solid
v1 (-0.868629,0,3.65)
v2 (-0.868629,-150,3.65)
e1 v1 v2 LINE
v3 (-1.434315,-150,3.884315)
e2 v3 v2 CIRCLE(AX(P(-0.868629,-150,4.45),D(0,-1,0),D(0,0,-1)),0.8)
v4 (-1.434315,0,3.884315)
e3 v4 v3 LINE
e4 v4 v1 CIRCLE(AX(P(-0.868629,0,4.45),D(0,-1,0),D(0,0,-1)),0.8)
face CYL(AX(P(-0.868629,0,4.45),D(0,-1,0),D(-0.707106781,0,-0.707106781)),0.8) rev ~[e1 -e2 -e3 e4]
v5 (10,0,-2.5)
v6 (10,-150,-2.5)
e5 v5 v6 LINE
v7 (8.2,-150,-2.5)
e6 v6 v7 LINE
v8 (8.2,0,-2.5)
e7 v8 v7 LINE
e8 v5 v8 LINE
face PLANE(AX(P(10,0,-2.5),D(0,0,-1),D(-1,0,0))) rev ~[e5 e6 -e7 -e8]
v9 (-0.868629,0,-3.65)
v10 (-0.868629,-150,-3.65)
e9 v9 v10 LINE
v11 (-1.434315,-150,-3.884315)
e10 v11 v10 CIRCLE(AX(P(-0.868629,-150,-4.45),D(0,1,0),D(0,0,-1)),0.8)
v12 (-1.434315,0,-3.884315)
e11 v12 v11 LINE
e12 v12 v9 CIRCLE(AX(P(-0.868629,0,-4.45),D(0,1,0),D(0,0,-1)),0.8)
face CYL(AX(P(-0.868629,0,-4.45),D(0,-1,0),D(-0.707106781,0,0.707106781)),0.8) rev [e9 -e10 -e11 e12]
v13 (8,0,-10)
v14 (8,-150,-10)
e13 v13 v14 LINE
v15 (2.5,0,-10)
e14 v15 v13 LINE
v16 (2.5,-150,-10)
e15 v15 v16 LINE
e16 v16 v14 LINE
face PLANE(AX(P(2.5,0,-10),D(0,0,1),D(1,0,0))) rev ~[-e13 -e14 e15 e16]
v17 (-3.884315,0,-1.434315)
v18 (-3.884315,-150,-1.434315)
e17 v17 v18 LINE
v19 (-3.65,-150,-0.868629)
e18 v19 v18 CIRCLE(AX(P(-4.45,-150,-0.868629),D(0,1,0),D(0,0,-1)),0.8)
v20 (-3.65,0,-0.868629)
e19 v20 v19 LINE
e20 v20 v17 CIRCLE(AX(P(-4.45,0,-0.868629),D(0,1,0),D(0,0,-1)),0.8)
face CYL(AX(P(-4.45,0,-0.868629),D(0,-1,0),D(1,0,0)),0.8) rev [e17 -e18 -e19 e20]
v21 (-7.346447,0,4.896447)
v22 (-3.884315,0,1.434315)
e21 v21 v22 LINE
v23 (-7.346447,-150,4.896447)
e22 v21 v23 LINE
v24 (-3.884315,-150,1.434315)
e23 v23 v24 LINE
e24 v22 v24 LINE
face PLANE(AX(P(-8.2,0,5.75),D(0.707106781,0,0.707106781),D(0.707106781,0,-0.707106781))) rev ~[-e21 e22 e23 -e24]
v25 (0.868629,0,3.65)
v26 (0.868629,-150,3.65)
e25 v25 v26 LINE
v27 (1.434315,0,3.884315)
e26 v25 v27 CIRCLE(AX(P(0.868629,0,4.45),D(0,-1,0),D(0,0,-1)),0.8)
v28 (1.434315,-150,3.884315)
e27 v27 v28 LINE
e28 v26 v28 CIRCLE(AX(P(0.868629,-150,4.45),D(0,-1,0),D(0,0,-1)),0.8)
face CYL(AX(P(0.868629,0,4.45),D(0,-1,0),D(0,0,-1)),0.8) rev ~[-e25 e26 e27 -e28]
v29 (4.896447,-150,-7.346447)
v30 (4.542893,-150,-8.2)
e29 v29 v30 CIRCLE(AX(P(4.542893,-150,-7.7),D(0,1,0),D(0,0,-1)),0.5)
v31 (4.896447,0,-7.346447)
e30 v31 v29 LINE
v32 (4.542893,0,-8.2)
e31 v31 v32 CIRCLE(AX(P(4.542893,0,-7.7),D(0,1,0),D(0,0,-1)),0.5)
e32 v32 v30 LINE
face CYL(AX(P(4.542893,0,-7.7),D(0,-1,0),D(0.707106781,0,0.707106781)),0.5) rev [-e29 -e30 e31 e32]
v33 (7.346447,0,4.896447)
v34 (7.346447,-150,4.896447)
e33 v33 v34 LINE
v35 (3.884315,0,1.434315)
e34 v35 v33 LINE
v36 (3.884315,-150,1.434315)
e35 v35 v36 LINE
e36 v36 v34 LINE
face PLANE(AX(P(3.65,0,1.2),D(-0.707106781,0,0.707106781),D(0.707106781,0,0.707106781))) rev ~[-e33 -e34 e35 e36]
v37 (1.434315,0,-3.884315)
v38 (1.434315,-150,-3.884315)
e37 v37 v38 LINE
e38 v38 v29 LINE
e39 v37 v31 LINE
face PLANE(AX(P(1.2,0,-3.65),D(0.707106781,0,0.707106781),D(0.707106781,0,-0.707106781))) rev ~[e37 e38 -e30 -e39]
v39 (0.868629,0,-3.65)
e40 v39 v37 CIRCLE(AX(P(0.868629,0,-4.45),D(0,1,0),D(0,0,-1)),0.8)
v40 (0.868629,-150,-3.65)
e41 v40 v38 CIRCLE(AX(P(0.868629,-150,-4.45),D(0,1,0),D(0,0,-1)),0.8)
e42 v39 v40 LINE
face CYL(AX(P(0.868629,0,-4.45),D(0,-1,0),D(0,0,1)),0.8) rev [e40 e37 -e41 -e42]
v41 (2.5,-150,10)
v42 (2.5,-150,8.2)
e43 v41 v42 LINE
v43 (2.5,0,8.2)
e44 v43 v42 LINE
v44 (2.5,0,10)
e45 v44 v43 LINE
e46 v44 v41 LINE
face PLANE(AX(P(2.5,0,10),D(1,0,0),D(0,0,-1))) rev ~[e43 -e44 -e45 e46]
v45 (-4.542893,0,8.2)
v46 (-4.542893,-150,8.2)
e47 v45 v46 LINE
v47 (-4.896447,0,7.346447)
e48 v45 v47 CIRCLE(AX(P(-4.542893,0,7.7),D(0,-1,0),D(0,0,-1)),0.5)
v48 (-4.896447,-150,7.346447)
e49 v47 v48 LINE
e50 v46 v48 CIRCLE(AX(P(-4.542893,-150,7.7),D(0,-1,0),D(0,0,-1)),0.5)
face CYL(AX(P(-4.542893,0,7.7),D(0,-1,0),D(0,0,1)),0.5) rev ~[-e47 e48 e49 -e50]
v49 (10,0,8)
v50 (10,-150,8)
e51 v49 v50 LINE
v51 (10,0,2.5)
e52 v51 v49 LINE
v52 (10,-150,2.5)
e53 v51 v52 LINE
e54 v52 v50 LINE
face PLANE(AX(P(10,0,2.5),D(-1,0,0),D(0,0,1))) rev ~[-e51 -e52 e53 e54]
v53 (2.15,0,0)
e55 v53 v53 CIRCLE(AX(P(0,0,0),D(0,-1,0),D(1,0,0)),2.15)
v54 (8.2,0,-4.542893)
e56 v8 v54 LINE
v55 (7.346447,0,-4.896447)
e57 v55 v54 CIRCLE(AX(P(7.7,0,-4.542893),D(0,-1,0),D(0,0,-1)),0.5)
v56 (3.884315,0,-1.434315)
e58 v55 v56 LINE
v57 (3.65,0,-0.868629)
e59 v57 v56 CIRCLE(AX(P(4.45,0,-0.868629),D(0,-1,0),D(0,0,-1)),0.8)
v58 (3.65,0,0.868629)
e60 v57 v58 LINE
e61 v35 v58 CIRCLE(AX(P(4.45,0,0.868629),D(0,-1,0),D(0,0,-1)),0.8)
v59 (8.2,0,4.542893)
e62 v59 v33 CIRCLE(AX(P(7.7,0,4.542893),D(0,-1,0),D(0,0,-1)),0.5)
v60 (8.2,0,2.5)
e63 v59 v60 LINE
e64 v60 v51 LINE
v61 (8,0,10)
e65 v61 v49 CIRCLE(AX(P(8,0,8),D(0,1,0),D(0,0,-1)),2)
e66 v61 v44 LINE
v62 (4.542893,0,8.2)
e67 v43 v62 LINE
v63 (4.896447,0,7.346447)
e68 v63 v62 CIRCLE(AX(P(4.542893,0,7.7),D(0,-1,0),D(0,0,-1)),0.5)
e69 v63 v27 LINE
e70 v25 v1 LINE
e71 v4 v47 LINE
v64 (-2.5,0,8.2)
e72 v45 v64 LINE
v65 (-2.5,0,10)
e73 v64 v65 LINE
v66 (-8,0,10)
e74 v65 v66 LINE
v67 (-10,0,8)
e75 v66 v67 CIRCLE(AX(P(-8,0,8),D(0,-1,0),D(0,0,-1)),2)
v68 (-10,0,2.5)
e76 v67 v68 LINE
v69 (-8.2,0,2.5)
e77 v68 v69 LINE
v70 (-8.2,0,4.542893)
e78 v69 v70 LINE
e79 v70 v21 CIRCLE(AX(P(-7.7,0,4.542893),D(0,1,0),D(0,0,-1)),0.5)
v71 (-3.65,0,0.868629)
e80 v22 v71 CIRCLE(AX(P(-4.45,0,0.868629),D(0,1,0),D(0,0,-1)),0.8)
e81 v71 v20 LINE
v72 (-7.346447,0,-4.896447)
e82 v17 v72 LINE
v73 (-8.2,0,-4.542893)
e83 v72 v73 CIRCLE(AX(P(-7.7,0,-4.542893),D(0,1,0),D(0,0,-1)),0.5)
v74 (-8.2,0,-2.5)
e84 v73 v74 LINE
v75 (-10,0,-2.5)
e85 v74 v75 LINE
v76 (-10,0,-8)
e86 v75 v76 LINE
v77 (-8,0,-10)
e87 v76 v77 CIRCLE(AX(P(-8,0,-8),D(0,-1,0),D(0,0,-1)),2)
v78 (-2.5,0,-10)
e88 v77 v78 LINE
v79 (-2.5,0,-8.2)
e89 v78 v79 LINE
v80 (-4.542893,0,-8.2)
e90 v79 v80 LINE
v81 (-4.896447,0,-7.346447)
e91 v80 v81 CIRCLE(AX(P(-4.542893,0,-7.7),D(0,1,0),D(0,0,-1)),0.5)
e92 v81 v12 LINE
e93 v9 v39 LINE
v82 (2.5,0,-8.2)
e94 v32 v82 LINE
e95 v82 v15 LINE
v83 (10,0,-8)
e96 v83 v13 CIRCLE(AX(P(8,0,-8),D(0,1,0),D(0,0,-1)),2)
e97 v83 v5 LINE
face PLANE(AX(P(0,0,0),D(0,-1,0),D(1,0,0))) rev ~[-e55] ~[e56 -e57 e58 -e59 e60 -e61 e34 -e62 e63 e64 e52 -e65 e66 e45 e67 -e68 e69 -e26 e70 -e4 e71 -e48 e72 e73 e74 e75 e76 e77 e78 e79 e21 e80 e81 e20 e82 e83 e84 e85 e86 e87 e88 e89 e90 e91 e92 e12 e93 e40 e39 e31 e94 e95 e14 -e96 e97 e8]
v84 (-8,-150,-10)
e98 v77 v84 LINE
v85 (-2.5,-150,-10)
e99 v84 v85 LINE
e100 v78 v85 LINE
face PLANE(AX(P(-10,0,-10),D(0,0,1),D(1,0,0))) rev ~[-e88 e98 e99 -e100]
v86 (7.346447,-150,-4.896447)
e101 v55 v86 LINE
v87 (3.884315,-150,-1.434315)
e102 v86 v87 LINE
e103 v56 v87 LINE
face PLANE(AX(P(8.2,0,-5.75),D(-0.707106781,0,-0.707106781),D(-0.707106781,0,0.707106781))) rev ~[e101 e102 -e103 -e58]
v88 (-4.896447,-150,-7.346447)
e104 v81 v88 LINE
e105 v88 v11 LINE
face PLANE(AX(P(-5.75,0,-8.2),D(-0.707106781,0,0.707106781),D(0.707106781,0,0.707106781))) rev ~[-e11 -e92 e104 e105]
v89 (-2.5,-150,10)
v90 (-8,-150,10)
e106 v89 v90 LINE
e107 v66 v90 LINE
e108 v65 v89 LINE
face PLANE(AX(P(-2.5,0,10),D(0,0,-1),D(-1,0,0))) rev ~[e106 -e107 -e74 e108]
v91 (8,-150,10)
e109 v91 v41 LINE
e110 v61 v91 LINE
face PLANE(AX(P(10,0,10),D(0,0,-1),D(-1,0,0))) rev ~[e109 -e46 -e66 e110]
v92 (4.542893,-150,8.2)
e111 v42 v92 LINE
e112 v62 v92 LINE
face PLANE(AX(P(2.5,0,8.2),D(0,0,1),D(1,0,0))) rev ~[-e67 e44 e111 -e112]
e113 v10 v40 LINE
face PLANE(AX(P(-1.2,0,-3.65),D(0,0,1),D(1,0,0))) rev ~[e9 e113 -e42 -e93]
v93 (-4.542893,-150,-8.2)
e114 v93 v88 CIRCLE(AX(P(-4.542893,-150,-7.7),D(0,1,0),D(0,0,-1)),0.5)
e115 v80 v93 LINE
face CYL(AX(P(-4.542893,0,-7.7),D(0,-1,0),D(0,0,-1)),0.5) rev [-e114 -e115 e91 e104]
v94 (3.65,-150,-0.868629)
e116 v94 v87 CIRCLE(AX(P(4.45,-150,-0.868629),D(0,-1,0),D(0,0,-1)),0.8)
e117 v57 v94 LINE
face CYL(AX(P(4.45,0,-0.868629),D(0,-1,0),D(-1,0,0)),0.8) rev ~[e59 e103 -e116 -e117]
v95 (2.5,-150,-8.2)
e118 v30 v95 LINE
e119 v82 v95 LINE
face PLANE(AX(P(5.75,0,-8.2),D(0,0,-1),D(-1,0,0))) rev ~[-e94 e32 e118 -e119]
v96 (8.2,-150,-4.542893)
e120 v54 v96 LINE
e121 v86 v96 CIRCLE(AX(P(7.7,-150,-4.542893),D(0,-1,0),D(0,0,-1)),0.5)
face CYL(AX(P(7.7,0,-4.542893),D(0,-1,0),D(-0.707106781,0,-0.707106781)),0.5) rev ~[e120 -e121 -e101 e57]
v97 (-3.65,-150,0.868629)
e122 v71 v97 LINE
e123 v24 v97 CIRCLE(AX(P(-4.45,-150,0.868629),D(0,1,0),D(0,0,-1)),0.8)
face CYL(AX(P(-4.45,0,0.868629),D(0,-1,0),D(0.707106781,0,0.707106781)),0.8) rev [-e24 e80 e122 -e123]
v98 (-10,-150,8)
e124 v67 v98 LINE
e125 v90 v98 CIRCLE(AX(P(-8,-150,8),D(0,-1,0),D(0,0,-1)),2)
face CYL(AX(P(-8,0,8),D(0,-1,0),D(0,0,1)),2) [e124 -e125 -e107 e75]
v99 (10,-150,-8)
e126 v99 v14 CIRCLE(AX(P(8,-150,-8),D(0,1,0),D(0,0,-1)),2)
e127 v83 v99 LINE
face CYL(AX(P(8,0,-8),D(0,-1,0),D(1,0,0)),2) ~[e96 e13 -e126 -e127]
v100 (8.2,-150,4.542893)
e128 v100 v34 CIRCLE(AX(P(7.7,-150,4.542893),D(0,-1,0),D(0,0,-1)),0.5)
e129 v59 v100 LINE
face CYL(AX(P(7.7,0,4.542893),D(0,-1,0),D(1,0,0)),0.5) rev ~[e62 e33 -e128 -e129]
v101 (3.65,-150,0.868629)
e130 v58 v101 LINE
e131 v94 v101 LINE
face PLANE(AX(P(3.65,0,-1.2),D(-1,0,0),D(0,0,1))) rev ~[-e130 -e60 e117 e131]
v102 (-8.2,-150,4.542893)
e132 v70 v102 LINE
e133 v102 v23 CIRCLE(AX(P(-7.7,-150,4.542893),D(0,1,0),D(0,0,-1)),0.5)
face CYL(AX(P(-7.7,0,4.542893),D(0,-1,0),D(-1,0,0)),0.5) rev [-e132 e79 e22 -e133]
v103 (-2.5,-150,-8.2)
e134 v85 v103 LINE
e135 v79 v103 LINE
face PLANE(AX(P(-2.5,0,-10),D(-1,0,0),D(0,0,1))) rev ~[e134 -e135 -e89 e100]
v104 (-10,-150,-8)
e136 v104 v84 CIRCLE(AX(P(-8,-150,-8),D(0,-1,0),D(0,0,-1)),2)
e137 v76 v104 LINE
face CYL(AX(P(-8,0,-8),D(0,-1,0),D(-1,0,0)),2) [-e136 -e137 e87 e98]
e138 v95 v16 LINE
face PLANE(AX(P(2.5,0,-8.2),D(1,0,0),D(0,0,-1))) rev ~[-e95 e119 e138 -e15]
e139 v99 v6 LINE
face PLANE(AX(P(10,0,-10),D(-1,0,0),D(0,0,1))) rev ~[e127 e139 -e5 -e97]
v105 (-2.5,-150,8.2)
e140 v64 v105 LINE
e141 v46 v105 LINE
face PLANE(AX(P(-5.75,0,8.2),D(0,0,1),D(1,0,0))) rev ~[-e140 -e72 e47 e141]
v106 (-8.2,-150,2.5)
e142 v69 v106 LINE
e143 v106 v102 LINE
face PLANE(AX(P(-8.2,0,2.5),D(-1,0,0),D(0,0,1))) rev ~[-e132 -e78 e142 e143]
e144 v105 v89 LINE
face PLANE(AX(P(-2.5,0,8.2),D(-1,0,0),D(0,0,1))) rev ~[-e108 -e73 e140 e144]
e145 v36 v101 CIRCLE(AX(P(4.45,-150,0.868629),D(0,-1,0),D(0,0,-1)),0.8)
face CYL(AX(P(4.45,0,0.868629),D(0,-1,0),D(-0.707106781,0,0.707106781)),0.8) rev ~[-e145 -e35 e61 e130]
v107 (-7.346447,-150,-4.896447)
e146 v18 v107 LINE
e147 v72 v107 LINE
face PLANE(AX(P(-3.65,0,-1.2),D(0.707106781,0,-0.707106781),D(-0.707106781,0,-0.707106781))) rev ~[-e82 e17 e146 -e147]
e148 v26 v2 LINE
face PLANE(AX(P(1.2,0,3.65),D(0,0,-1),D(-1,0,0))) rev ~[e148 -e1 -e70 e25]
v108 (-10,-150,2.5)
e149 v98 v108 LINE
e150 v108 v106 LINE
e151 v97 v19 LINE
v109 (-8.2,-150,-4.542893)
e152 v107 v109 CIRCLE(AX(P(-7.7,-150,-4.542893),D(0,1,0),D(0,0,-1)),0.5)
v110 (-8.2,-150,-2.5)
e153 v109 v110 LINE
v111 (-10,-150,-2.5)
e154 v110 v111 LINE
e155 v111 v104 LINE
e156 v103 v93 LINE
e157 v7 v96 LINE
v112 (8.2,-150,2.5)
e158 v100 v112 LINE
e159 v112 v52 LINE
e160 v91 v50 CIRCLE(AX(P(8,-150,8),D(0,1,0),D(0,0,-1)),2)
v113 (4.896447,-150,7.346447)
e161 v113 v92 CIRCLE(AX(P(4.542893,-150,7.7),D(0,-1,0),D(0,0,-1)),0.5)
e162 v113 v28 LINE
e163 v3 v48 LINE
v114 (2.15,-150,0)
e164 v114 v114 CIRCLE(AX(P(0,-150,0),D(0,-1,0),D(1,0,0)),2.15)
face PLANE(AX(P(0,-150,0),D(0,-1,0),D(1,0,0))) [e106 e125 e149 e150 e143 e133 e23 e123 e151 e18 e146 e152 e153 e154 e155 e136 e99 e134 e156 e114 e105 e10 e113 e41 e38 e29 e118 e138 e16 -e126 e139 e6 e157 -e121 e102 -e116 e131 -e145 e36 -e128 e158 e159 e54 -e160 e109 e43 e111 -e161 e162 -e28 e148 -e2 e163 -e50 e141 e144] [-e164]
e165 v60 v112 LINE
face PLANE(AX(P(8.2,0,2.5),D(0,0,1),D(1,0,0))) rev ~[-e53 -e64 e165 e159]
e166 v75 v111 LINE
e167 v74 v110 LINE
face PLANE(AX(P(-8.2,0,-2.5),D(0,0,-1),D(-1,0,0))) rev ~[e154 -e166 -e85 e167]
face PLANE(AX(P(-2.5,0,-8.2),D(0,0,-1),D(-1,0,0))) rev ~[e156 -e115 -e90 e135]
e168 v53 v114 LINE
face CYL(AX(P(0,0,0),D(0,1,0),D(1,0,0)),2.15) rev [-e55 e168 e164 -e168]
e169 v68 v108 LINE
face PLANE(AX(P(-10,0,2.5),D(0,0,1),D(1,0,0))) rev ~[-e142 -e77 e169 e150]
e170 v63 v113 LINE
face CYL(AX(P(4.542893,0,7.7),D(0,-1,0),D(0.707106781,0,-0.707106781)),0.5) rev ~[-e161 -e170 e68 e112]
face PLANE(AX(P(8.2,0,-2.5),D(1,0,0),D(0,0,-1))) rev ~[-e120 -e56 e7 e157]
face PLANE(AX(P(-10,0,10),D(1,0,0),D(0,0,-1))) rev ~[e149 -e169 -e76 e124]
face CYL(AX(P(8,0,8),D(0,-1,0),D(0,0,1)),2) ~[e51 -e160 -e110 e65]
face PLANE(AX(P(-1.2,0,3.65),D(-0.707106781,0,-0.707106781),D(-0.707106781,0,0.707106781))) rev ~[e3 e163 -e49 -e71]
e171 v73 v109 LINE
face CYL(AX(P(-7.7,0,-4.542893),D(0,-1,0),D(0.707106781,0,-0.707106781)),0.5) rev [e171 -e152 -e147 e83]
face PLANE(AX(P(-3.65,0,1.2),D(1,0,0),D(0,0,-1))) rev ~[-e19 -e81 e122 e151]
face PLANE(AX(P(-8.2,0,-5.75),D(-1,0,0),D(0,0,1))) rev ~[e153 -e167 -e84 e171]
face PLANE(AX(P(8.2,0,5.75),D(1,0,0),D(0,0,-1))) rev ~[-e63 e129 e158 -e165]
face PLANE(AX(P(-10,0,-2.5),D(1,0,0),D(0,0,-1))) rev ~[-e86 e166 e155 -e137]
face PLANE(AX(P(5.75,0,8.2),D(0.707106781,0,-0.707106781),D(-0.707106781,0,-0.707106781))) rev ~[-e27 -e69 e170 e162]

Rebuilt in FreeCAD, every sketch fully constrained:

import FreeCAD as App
import Part
import Sketcher
Q = App.Units.Quantity


def edges_at(feature, points):
    """Names of the edges that pass closest to the given points."""
    edges = feature.Shape.Edges
    near = lambda p: min(range(len(edges)), key=lambda i: edges[i].distToShape(Part.Vertex(*p))[0])
    return sorted({f"Edge{near(p) + 1}" for p in points})


def add_polygon(sketch, points):
    """Adds a closed chain of lines whose ends are joined by coincident constraints."""
    first, n = sketch.GeometryCount, len(points)
    for a, b in zip(points, points[1:] + points[:1]):
        sketch.addGeometry(Part.LineSegment(App.Vector(*a, 0), App.Vector(*b, 0)), False)
    for i in range(n):
        sketch.addConstraint(Sketcher.Constraint("Coincident", first + i, 2, first + (i + 1) % n, 1))

doc = App.newDocument("Part")
body = doc.addObject("PartDesign::Body", "Body")

# Sketch on XZ plane
sketch1 = doc.addObject("Sketcher::SketchObject", "Sketch")
body.addObject(sketch1)
sketch1.AttachmentSupport = (doc.XZ_Plane, [""])
sketch1.MapMode = "FlatFace"
add_polygon(sketch1, [(-2.5, 10), (-10, 10), (-10, 2.5), (-8.2, 2.5), (-8.2, 5.8), (-3.6, 1.2), (-3.6, -1.2), (-8.2, -5.8), (-8.2, -2.5), (-10, -2.5), (-10, -10), (-2.5, -10), (-2.5, -8.2), (-5.8, -8.2), (-1.2, -3.6), (1.2, -3.6), (5.8, -8.2), (2.5, -8.2), (2.5, -10), (10, -10), (10, -2.5), (8.2, -2.5), (8.2, -5.8), (3.6, -1.2), (3.6, 1.2), (8.2, 5.8), (8.2, 2.5), (10, 2.5), (10, 10), (2.5, 10), (2.5, 8.2), (5.8, 8.2), (1.2, 3.6), (-1.2, 3.6), (-5.8, 8.2), (-2.5, 8.2)])  # lines 0-35
sketch1.addGeometry(Part.Circle(App.Vector(0, 0, 0), App.Vector(0, 0, 1), 2.1), False)  # 36
sketch1.addConstraint([
    Sketcher.Constraint("Horizontal", 0),
    Sketcher.Constraint("Vertical", 1),
    Sketcher.Constraint("Horizontal", 2),
    Sketcher.Constraint("Vertical", 3),
    Sketcher.Constraint("Vertical", 5),
    Sketcher.Constraint("Vertical", 7),
    Sketcher.Constraint("Horizontal", 8),
    Sketcher.Constraint("Vertical", 9),
    Sketcher.Constraint("Horizontal", 10),
    Sketcher.Constraint("Vertical", 11),
    Sketcher.Constraint("Horizontal", 12),
    Sketcher.Constraint("Horizontal", 14),
    Sketcher.Constraint("Horizontal", 16),
    Sketcher.Constraint("Vertical", 17),
    Sketcher.Constraint("Horizontal", 18),
    Sketcher.Constraint("Vertical", 19),
    Sketcher.Constraint("Horizontal", 20),
    Sketcher.Constraint("Vertical", 21),
    Sketcher.Constraint("Vertical", 23),
    Sketcher.Constraint("Vertical", 25),
    Sketcher.Constraint("Horizontal", 26),
    Sketcher.Constraint("Vertical", 27),
    Sketcher.Constraint("Horizontal", 28),
    Sketcher.Constraint("Vertical", 29),
    Sketcher.Constraint("Horizontal", 30),
    Sketcher.Constraint("Horizontal", 32),
    Sketcher.Constraint("Horizontal", 34),
    Sketcher.Constraint("Vertical", 35),
    Sketcher.Constraint("Coincident", 36, 3, -1, 1),
    Sketcher.Constraint("Symmetric", 0, 2, 18, 2, -1, 1),
    Sketcher.Constraint("Symmetric", 2, 2, 20, 2, -1, 1),
    Sketcher.Constraint("Symmetric", 4, 2, 22, 2, -1, 1),
    Sketcher.Constraint("Symmetric", 6, 2, 24, 2, -1, 1),
    Sketcher.Constraint("Symmetric", 8, 2, 26, 2, -1, 1),
    Sketcher.Constraint("Symmetric", 10, 2, 28, 2, -1, 1),
    Sketcher.Constraint("Symmetric", 12, 2, 30, 2, -1, 1),
    Sketcher.Constraint("Symmetric", 13, 2, 31, 2, -1, 1),
    Sketcher.Constraint("Symmetric", 15, 2, 33, 2, -1, 1),
    Sketcher.Constraint("Symmetric", 12, 2, 15, 2, -2),
    Sketcher.Constraint("Symmetric", 10, 2, 17, 2, -2),
    Sketcher.Constraint("Symmetric", 8, 2, 19, 2, -2),
    Sketcher.Constraint("Symmetric", 6, 2, 21, 2, -2),
    Sketcher.Constraint("Perpendicular", 4, 6),
    Sketcher.Constraint("Parallel", 6, 13),
    Sketcher.Constraint("Perpendicular", 13, 15),
    Sketcher.Constraint("Parallel", 15, 22),
    Sketcher.Constraint("Perpendicular", 22, 24),
    Sketcher.Constraint("Perpendicular", 31, 33),
    Sketcher.Constraint("Horizontal", 5, 2, 22, 2),
    Sketcher.Constraint("Vertical", 11, 2, 34, 2),
    Sketcher.Constraint("Equal", 28, 1),
    Sketcher.Constraint("Equal", 34, 3),
    Sketcher.Constraint("Equal", 32, 5),
    Sketcher.Constraint("Equal", 26, 11),
    Sketcher.Constraint("Equal", 6, 13),
    Sketcher.Constraint("Diameter", 36, Q("4.3 mm")),
    Sketcher.Constraint("DistanceX", 0, 2, 0, 1, Q("7.5 mm")),
    Sketcher.Constraint("DistanceX", 2, 1, 2, 2, Q("1.8 mm")),
    Sketcher.Constraint("DistanceX", 14, 1, 14, 2, Q("2.4 mm")),
    Sketcher.Constraint("DistanceX", 0, 2, -1, 1, Q("10 mm")),
    Sketcher.Constraint("DistanceX", 12, 2, 12, 1, Q("3.25 mm")),
])
pad1 = doc.addObject("PartDesign::Pad", "Pad")
body.addObject(pad1)
pad1.Profile = sketch1
pad1.Length = 150
doc.recompute()

fillet = doc.addObject("PartDesign::Fillet", "Fillet")
body.addObject(fillet)
fillet.Base = (pad1, edges_at(pad1, [
    (-10, -75, 10),
    (10, -75, 10),
    (10, -75, -10),
    (-10, -75, -10),
]))
fillet.Radius = 2
doc.recompute()

fillet2 = doc.addObject("PartDesign::Fillet", "Fillet001")
body.addObject(fillet2)
fillet2.Base = (fillet, edges_at(fillet, [
    (-8.2, -75, -5.75),
    (8.2, -75, -5.75),
    (5.75, -75, 8.2),
    (5.75, -75, -8.2),
    (-5.75, -75, 8.2),
    (-5.75, -75, -8.2),
    (8.2, -75, 5.75),
    (-8.2, -75, 5.75),
]))
fillet2.Radius = 0.5
doc.recompute()

fillet3 = doc.addObject("PartDesign::Fillet", "Fillet002")
body.addObject(fillet3)
fillet3.Base = (fillet2, edges_at(fillet2, [
    (-1.2, -75, 3.65),
    (3.65, -75, -1.2),
    (1.2, -75, 3.65),
    (-3.65, -75, 1.2),
    (-3.65, -75, -1.2),
    (1.2, -75, -3.65),
    (-1.2, -75, -3.65),
    (3.65, -75, 1.2),
]))
fillet3.Radius = 0.8

doc.recompute()
